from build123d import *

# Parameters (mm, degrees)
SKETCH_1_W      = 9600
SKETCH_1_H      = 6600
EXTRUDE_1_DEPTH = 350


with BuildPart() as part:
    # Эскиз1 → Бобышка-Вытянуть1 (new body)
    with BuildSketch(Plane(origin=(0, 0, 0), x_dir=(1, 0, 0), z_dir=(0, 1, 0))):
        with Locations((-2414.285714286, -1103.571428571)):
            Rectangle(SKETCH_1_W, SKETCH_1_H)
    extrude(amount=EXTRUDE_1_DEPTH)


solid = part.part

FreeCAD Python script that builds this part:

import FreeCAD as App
import Part
import Sketcher
from FreeCAD import Vector
Q = App.Units.Quantity

doc = App.newDocument("Part")
body = doc.addObject("PartDesign::Body", "Body")

sketch1 = doc.addObject("Sketcher::SketchObject", "Sketch")
body.addObject(sketch1)
sketch1.AttachmentSupport = (doc.XZ_Plane, [""])
sketch1.MapMode = "FlatFace"
sketch1.addGeometry(Part.LineSegment(Vector(-7214.285714, -2196.428571, 0), Vector(-7214.285714, 4403.571429, 0)), False)
sketch1.addGeometry(Part.LineSegment(Vector(-7214.285714, 4403.571429, 0), Vector(2385.714286, 4403.571429, 0)), False)
sketch1.addGeometry(Part.LineSegment(Vector(2385.714286, 4403.571429, 0), Vector(2385.714286, -2196.428571, 0)), False)
sketch1.addGeometry(Part.LineSegment(Vector(2385.714286, -2196.428571, 0), Vector(-7214.285714, -2196.428571, 0)), False)
sketch1.addConstraint(Sketcher.Constraint("Coincident", 0, 2, 1, 1))
sketch1.addConstraint(Sketcher.Constraint("Coincident", 1, 2, 2, 1))
sketch1.addConstraint(Sketcher.Constraint("Coincident", 2, 2, 3, 1))
sketch1.addConstraint(Sketcher.Constraint("Coincident", 3, 2, 0, 1))
sketch1.addConstraint(Sketcher.Constraint("Vertical", 0))
sketch1.addConstraint(Sketcher.Constraint("Horizontal", 1))
sketch1.addConstraint(Sketcher.Constraint("Vertical", 2))
sketch1.addConstraint(Sketcher.Constraint("Horizontal", 3))
sketch1.addConstraint(Sketcher.Constraint("DistanceX", 1, 1, 1, 2, Q("9600 mm")))
sketch1.addConstraint(Sketcher.Constraint("DistanceY", 0, 1, 0, 2, Q("6600 mm")))
sketch1.addConstraint(Sketcher.Constraint("DistanceY", -1, 1, 0, 2, Q("4403.571429 mm")))
sketch1.addConstraint(Sketcher.Constraint("DistanceX", 0, 2, -1, 1, Q("7214.285714 mm")))
pad1 = doc.addObject("PartDesign::Pad", "Pad")
body.addObject(pad1)
pad1.Profile = sketch1
pad1.Length = 350
pad1.Reversed = True

doc.recompute()
